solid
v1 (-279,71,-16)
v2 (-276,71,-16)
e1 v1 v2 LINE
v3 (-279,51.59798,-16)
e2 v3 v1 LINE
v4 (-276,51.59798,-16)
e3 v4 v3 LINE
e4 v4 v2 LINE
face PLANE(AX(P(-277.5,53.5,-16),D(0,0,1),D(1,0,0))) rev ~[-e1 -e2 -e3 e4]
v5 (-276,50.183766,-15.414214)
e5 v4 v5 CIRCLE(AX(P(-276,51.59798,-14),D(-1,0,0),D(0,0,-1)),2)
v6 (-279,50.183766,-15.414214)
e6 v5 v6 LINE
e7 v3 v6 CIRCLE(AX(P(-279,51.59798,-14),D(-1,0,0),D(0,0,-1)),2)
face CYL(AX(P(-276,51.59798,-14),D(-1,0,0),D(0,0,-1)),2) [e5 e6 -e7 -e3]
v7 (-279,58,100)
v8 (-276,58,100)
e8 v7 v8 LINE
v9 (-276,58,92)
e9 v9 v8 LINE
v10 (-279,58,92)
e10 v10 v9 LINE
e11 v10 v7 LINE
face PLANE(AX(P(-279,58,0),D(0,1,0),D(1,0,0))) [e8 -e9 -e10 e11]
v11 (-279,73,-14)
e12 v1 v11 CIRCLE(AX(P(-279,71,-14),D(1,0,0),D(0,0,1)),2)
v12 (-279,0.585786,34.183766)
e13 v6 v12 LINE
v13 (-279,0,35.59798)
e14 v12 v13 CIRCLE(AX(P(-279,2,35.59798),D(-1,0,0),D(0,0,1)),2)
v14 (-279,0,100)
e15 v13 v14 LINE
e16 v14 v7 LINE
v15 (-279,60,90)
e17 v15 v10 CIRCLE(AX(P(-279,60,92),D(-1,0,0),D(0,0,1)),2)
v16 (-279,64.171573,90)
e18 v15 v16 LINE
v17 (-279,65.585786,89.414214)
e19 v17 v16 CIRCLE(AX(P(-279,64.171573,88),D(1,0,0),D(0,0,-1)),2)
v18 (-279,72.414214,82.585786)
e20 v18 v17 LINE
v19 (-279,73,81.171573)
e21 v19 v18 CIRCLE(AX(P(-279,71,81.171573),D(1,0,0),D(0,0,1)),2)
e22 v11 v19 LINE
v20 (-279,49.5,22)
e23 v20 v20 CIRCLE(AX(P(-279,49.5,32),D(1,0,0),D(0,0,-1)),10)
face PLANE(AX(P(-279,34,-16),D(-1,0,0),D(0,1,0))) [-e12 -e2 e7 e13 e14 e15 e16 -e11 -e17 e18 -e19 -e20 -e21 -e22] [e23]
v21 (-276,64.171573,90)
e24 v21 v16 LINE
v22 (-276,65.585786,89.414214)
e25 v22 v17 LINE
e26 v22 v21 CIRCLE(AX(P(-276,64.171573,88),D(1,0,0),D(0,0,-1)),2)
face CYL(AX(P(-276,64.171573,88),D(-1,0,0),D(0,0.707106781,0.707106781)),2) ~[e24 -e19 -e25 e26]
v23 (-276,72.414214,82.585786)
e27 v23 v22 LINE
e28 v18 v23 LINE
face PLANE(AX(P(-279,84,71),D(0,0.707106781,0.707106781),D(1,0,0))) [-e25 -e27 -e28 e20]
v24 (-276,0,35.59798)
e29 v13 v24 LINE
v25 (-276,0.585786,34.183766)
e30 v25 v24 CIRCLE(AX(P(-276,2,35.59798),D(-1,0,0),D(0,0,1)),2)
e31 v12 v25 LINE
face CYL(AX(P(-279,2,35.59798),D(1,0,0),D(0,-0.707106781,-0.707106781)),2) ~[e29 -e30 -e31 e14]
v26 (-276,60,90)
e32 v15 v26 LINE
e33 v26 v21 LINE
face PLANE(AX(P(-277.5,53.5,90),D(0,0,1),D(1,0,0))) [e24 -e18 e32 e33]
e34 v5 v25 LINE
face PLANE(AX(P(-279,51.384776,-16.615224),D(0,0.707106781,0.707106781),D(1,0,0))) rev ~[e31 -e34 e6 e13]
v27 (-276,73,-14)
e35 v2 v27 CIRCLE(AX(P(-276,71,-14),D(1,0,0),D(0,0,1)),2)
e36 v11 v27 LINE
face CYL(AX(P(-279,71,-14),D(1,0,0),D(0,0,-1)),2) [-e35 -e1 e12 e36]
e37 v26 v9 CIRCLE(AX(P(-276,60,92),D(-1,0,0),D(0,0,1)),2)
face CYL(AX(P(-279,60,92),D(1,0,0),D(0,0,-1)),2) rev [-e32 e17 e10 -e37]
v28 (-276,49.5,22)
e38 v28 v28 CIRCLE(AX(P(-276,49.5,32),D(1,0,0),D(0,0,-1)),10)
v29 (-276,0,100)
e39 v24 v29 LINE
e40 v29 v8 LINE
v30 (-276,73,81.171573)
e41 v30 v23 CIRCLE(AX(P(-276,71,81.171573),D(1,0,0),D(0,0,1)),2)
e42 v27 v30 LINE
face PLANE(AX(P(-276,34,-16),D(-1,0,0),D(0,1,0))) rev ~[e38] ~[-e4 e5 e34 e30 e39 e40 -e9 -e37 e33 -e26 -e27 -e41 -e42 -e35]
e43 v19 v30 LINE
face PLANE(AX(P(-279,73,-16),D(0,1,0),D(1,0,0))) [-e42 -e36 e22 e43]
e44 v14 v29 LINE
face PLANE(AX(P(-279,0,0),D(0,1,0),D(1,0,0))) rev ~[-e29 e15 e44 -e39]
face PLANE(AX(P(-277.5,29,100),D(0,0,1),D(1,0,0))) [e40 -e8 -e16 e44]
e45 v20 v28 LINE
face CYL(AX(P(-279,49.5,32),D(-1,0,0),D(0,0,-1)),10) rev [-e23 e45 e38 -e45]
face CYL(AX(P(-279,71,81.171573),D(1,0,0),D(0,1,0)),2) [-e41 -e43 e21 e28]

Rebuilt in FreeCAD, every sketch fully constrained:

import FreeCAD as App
import Part
import Sketcher

V = App.Vector


def edges_at(feature, points):
    """Names of the edges that pass closest to the given points."""
    edges = feature.Shape.Edges
    near = lambda p: min(range(len(edges)), key=lambda i: edges[i].distToShape(Part.Vertex(*p))[0])
    return sorted({f"Edge{near(p) + 1}" for p in points})


def add_polygon(sketch, points):
    """Adds a closed chain of lines whose ends are joined by coincident constraints."""
    first, n = sketch.GeometryCount, len(points)
    for a, b in zip(points, points[1:] + points[:1]):
        sketch.addGeometry(Part.LineSegment(App.Vector(*a, 0), App.Vector(*b, 0)), False)
    for i in range(n):
        sketch.addConstraint(Sketcher.Constraint("Coincident", first + i, 2, first + (i + 1) % n, 1))

doc = App.newDocument("Part")
body = doc.addObject("PartDesign::Body", "Body")

# Sketch on YZ plane
sketch1 = body.newObject("Sketcher::SketchObject", "Sketch")
sketch1.AttachmentSupport = (doc.getObject("YZ_Plane"), [""])
sketch1.MapMode = "FlatFace"
sketch1.AttachmentOffset = App.Placement(V(0, 0, -279), App.Rotation())
sketch1.addGeometry(Part.Circle(V(50, 32, 0), V(0, 0, 1), 10), False)
sketch1.addConstraint(Sketcher.Constraint("Diameter", 0, 20.0))
sketch1.addConstraint(Sketcher.Constraint("DistanceY", -1, 1, 0, 3, 32.0))
sketch1.addConstraint(Sketcher.Constraint("DistanceX", -1, 1, 0, 3, 49.5))
pad1 = body.newObject("PartDesign::Pad", "Pad")
pad1.Profile = sketch1
pad1.Length = 3
body2 = doc.addObject("PartDesign::Body", "Body001")

# Sketch on XY plane
sketch2 = body2.newObject("Sketcher::SketchObject", "Sketch001")
sketch2.AttachmentSupport = (doc.getObject("XY_Plane001"), [""])
sketch2.MapMode = "FlatFace"
add_polygon(sketch2, [(0, 12), (0, 0), (3, 0), (3, 12)])  # lines 0-3
sketch2.addConstraint(Sketcher.Constraint("Vertical", 0))
sketch2.addConstraint(Sketcher.Constraint("Horizontal", 1))
sketch2.addConstraint(Sketcher.Constraint("Vertical", 2))
sketch2.addConstraint(Sketcher.Constraint("Horizontal", 3))
sketch2.addConstraint(Sketcher.Constraint("Coincident", 0, 2, -1, 1))
sketch2.addConstraint(Sketcher.Constraint("DistanceX", 1, 1, 1, 2, 3.0))
sketch2.addConstraint(Sketcher.Constraint("DistanceY", 0, 2, 0, 1, 12.0))
pad2 = body2.newObject("PartDesign::Pad", "Pad001")
pad2.Profile = sketch2
pad2.Length = 27
body3 = doc.addObject("PartDesign::Body", "Body002")
doc.recompute()

body2.Placement = App.Placement(V(-279, 84, 71), App.Rotation(V(1, 0, 0), 45))
boolean = body3.newObject("PartDesign::Boolean", "Boolean")
boolean.Type = "Fuse"
boolean.addObjects([body2])
body4 = doc.addObject("PartDesign::Body", "Body003")

# Sketch on XY plane
sketch3 = body4.newObject("Sketcher::SketchObject", "Sketch002")
sketch3.AttachmentSupport = (doc.getObject("XY_Plane003"), [""])
sketch3.MapMode = "FlatFace"
add_polygon(sketch3, [(0, 26), (0, 0), (3, 0), (3, 26)])  # lines 0-3
sketch3.addConstraint(Sketcher.Constraint("Vertical", 0))
sketch3.addConstraint(Sketcher.Constraint("Horizontal", 1))
sketch3.addConstraint(Sketcher.Constraint("Vertical", 2))
sketch3.addConstraint(Sketcher.Constraint("Horizontal", 3))
sketch3.addConstraint(Sketcher.Constraint("Coincident", 0, 2, -1, 1))
sketch3.addConstraint(Sketcher.Constraint("DistanceX", 1, 1, 1, 2, 3.0))
sketch3.addConstraint(Sketcher.Constraint("DistanceY", 0, 2, 0, 1, 26.0))
pad3 = body4.newObject("PartDesign::Pad", "Pad002")
pad3.Profile = sketch3
pad3.Length = 76
body5 = doc.addObject("PartDesign::Body", "Body004")
doc.recompute()

body4.Placement = App.Placement(V(-279, 33, -35), App.Rotation(V(1, 0, 0), 45))
boolean2 = body5.newObject("PartDesign::Boolean", "Boolean001")
boolean2.Type = "Fuse"
boolean2.addObjects([body4])
body6 = doc.addObject("PartDesign::Body", "Body005")

# Sketch on XY plane
sketch4 = body6.newObject("Sketcher::SketchObject", "Sketch003")
sketch4.AttachmentSupport = (doc.getObject("XY_Plane005"), [""])
sketch4.MapMode = "FlatFace"
sketch4.AttachmentOffset = App.Placement(V(0, 0, -16), App.Rotation())
add_polygon(sketch4, [(-279, 73), (-279, 34), (-276, 34), (-276, 73)])  # lines 0-3
sketch4.addConstraint(Sketcher.Constraint("Vertical", 0))
sketch4.addConstraint(Sketcher.Constraint("Horizontal", 1))
sketch4.addConstraint(Sketcher.Constraint("Vertical", 2))
sketch4.addConstraint(Sketcher.Constraint("Horizontal", 3))
sketch4.addConstraint(Sketcher.Constraint("DistanceX", 1, 1, 1, 2, 3.0))
sketch4.addConstraint(Sketcher.Constraint("DistanceY", 0, 2, 0, 1, 39.0))
sketch4.addConstraint(Sketcher.Constraint("DistanceX", 0, 2, -1, 1, 279.0))
sketch4.addConstraint(Sketcher.Constraint("DistanceY", -1, 1, 0, 2, 34.0))
pad4 = body6.newObject("PartDesign::Pad", "Pad003")
pad4.Profile = sketch4
pad4.Length = 106
body7 = doc.addObject("PartDesign::Body", "Body006")

# Sketch on XY plane
sketch5 = body7.newObject("Sketcher::SketchObject", "Sketch004")
sketch5.AttachmentSupport = (doc.getObject("XY_Plane006"), [""])
sketch5.MapMode = "FlatFace"
add_polygon(sketch5, [(-279, 58), (-279, 0), (-276, 0), (-276, 58)])  # lines 0-3
sketch5.addConstraint(Sketcher.Constraint("Vertical", 0))
sketch5.addConstraint(Sketcher.Constraint("Horizontal", 1))
sketch5.addConstraint(Sketcher.Constraint("Vertical", 2))
sketch5.addConstraint(Sketcher.Constraint("Horizontal", 3))
sketch5.addConstraint(Sketcher.Constraint("PointOnObject", 0, 2, -1))
sketch5.addConstraint(Sketcher.Constraint("DistanceX", 1, 1, 1, 2, 3.0))
sketch5.addConstraint(Sketcher.Constraint("DistanceY", 0, 2, 0, 1, 58.0))
sketch5.addConstraint(Sketcher.Constraint("DistanceX", 0, 2, -1, 1, 279.0))
pad5 = body7.newObject("PartDesign::Pad", "Pad004")
pad5.Profile = sketch5
pad5.Length = 100
doc.recompute()

boolean3 = body7.newObject("PartDesign::Boolean", "Boolean002")
boolean3.Type = "Fuse"
boolean3.addObjects([body6])
doc.recompute()

boolean4 = body7.newObject("PartDesign::Boolean", "Boolean003")
boolean4.Type = "Cut"
boolean4.addObjects([body5])
doc.recompute()

boolean5 = body7.newObject("PartDesign::Boolean", "Boolean004")
boolean5.Type = "Cut"
boolean5.addObjects([body3])
doc.recompute()

boolean6 = body7.newObject("PartDesign::Boolean", "Boolean005")
boolean6.Type = "Cut"
boolean6.addObjects([body])
doc.recompute()

fillet = body7.newObject("PartDesign::Fillet", "Fillet")
fillet.Base = (boolean6, edges_at(boolean6, [
    (-277.5, 58, 90),
    (-277.5, 0, 34.77),
    (-277.5, 50.77, -16),
    (-277.5, 65, 90),
    (-277.5, 73, -16),
    (-277.5, 73, 82),
]))
fillet.Radius = 2

doc.recompute()
